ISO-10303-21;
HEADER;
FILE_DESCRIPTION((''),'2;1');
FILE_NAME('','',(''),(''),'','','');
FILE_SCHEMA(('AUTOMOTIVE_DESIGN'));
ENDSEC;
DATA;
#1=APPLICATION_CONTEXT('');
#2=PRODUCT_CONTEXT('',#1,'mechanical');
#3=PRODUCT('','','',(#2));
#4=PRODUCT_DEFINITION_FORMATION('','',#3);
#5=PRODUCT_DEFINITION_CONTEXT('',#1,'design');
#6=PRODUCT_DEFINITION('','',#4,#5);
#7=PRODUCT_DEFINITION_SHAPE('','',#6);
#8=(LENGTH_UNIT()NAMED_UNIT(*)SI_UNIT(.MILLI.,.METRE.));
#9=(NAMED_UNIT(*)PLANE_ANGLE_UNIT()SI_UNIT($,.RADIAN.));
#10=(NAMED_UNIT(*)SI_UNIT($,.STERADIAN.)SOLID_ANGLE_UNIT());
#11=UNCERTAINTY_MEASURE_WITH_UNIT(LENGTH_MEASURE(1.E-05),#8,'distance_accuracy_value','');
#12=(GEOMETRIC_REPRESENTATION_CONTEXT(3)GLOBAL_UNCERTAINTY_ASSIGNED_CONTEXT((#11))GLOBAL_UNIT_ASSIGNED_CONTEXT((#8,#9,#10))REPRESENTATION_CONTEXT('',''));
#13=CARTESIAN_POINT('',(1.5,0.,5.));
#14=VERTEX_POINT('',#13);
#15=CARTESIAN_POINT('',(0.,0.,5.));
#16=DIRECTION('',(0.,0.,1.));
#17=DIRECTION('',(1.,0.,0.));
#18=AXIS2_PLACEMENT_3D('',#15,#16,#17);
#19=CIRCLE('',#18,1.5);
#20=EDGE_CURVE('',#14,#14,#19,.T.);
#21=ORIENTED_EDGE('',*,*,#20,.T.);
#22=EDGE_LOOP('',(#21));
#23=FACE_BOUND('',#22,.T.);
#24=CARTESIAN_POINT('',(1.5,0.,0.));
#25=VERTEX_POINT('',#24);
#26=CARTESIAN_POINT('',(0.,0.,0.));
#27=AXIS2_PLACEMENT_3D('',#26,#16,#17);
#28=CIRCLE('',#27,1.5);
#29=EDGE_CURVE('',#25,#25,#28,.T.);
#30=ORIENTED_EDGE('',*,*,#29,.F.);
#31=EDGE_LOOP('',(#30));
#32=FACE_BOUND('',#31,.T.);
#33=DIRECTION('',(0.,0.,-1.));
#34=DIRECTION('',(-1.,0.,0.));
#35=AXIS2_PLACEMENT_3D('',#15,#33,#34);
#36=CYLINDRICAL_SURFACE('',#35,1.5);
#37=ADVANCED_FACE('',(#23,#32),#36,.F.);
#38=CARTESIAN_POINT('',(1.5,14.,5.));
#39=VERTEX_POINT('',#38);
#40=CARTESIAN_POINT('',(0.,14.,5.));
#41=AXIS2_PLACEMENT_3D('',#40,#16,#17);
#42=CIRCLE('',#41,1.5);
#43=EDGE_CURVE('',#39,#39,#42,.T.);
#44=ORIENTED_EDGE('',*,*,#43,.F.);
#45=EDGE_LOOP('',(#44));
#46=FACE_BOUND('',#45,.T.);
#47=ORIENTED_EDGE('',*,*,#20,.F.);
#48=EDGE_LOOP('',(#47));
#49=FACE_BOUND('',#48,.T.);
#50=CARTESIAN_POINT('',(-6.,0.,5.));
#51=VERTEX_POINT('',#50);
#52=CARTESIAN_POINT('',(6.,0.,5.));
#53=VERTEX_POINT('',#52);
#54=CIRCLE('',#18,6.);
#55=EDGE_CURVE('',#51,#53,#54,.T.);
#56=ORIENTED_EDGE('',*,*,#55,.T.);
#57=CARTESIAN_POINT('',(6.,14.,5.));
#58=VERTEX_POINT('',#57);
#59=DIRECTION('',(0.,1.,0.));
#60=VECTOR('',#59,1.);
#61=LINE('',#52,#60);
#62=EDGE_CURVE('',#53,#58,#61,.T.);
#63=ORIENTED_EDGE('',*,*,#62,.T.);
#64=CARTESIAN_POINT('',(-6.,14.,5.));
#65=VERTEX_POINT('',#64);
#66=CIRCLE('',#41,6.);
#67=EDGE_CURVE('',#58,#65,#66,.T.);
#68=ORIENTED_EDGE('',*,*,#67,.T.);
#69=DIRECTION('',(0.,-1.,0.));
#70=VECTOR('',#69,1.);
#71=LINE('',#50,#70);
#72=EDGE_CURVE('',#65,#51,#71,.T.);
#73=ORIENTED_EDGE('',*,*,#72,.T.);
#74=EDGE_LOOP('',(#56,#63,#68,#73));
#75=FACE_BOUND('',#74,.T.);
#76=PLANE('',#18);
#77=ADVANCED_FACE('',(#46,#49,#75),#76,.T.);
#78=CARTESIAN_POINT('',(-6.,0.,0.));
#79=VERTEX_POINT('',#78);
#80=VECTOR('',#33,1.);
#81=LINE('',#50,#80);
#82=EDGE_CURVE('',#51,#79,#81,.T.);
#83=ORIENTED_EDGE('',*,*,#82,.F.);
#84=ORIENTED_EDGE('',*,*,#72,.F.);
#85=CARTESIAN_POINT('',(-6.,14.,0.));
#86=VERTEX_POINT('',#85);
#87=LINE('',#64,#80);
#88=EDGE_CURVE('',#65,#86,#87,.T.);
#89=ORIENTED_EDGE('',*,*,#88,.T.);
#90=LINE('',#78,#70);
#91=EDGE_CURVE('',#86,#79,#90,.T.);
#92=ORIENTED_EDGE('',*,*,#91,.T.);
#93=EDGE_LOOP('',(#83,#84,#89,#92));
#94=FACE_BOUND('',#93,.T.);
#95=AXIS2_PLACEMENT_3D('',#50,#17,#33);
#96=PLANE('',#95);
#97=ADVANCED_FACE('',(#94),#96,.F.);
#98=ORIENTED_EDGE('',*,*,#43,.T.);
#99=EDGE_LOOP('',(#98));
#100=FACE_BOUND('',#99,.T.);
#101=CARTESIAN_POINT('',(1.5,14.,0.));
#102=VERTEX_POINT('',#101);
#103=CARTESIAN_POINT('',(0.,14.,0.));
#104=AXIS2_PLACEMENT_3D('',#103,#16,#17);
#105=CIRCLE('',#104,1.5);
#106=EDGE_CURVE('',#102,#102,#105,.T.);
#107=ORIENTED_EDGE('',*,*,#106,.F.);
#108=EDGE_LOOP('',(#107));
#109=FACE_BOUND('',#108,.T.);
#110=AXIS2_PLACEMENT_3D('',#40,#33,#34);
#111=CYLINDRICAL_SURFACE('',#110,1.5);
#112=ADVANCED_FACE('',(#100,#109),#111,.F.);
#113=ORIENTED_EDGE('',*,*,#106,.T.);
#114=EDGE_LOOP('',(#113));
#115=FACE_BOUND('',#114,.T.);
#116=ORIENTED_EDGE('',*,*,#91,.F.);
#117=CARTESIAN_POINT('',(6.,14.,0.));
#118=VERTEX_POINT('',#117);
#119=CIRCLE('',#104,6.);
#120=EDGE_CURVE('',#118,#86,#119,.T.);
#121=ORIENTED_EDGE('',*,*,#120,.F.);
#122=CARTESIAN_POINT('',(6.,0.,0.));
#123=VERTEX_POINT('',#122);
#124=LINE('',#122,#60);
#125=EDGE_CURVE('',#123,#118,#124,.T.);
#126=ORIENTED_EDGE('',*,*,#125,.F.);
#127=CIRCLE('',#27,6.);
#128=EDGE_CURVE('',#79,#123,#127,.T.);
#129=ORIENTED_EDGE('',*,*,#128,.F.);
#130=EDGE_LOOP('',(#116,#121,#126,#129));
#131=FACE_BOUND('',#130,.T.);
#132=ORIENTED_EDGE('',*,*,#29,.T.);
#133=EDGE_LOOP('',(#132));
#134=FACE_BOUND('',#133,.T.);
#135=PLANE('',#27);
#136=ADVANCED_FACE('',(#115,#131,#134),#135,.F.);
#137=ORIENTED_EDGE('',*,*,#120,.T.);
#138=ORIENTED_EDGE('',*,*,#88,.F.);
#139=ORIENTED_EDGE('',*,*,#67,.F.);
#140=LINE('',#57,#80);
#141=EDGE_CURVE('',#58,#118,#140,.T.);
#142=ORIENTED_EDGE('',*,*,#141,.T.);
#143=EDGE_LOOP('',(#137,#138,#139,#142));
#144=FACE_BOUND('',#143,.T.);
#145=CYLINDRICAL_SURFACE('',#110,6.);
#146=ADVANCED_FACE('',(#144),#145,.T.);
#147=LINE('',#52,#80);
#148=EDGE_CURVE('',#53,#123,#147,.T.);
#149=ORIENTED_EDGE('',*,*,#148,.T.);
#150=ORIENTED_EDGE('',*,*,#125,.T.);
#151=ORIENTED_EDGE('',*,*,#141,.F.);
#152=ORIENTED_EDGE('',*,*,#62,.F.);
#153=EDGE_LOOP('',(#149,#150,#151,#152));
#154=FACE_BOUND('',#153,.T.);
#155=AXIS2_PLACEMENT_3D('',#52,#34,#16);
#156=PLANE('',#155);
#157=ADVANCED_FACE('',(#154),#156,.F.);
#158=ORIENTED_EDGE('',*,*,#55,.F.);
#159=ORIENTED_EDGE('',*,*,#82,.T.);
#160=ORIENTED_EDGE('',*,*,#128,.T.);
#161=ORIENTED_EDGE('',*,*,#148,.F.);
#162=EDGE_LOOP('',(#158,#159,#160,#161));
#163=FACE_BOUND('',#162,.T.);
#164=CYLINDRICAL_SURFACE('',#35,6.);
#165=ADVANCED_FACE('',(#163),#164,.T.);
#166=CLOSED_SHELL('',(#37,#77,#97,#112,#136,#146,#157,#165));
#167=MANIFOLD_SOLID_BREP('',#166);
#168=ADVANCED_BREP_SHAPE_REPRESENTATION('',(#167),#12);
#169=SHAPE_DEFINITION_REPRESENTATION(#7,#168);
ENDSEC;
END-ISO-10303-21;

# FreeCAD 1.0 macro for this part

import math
import FreeCAD as App
import Part
import Sketcher

V = App.Vector
Q = App.Units.Quantity

doc = App.newDocument("Part")
params = doc.addObject("Spreadsheet::Sheet", "Params")
for row, (alias, value) in enumerate([
    ("sketch1_diameter", "3 mm"),
    ("sketch1_radius", "6 mm"),
    ("sketch1_height", "14 mm"),
    ("pad1_length", "5 mm"),
], start=1):
    params.set(f"A{row}", alias)
    params.set(f"B{row}", "=" + value)
    params.setAlias(f"B{row}", alias)

body = doc.addObject("PartDesign::Body", "Body")

# Sketch on XY plane
sketch1 = doc.addObject("Sketcher::SketchObject", "Sketch")
body.addObject(sketch1)
sketch1.AttachmentSupport = (doc.XY_Plane, [""])
sketch1.MapMode = "FlatFace"
sketch1.addGeometry(Part.LineSegment(V(-6, 14, 0), V(-6, 0, 0)), False)
sketch1.addGeometry(Part.ArcOfCircle(Part.Circle(V(0, 0, 0), V(0, 0, 1), 6), math.radians(180), math.radians(360)), False)
sketch1.addGeometry(Part.LineSegment(V(6, 0, 0), V(6, 14, 0)), False)
sketch1.addGeometry(Part.ArcOfCircle(Part.Circle(V(0, 14, 0), V(0, 0, 1), 6), math.radians(0), math.radians(180)), False)
sketch1.addGeometry(Part.Circle(V(0, 0, 0), V(0, 0, 1), 1.5), False)
sketch1.addGeometry(Part.Circle(V(0, 14, 0), V(0, 0, 1), 1.5), False)
sketch1.addConstraint(Sketcher.Constraint("Tangent", 0, 2, 1, 1))
sketch1.addConstraint(Sketcher.Constraint("Tangent", 1, 2, 2, 1))
sketch1.addConstraint(Sketcher.Constraint("Tangent", 2, 2, 3, 1))
sketch1.addConstraint(Sketcher.Constraint("Tangent", 3, 2, 0, 1))
sketch1.addConstraint(Sketcher.Constraint("Vertical", 0))
sketch1.addConstraint(Sketcher.Constraint("Vertical", 2))
sketch1.addConstraint(Sketcher.Constraint("Coincident", 1, 3, -1, 1))
sketch1.addConstraint(Sketcher.Constraint("Coincident", 4, 3, -1, 1))
sketch1.addConstraint(Sketcher.Constraint("Coincident", 5, 3, 3, 3))
sketch1.addConstraint(Sketcher.Constraint("Equal", 4, 5))
sketch1.addConstraint(Sketcher.Constraint("Diameter", 4, Q("3 mm")))
sketch1.addConstraint(Sketcher.Constraint("Radius", 1, Q("6 mm")))
sketch1.addConstraint(Sketcher.Constraint("DistanceY", 0, 2, 0, 1, Q("14 mm")))
sketch1.setExpression("Constraints[10]", "Params.sketch1_diameter")
sketch1.setExpression("Constraints[11]", "Params.sketch1_radius")
sketch1.setExpression("Constraints[12]", "Params.sketch1_height")
pad1 = doc.addObject("PartDesign::Pad", "Pad")
body.addObject(pad1)
pad1.Profile = sketch1
pad1.setExpression("Length", "Params.pad1_length")

doc.recompute()
